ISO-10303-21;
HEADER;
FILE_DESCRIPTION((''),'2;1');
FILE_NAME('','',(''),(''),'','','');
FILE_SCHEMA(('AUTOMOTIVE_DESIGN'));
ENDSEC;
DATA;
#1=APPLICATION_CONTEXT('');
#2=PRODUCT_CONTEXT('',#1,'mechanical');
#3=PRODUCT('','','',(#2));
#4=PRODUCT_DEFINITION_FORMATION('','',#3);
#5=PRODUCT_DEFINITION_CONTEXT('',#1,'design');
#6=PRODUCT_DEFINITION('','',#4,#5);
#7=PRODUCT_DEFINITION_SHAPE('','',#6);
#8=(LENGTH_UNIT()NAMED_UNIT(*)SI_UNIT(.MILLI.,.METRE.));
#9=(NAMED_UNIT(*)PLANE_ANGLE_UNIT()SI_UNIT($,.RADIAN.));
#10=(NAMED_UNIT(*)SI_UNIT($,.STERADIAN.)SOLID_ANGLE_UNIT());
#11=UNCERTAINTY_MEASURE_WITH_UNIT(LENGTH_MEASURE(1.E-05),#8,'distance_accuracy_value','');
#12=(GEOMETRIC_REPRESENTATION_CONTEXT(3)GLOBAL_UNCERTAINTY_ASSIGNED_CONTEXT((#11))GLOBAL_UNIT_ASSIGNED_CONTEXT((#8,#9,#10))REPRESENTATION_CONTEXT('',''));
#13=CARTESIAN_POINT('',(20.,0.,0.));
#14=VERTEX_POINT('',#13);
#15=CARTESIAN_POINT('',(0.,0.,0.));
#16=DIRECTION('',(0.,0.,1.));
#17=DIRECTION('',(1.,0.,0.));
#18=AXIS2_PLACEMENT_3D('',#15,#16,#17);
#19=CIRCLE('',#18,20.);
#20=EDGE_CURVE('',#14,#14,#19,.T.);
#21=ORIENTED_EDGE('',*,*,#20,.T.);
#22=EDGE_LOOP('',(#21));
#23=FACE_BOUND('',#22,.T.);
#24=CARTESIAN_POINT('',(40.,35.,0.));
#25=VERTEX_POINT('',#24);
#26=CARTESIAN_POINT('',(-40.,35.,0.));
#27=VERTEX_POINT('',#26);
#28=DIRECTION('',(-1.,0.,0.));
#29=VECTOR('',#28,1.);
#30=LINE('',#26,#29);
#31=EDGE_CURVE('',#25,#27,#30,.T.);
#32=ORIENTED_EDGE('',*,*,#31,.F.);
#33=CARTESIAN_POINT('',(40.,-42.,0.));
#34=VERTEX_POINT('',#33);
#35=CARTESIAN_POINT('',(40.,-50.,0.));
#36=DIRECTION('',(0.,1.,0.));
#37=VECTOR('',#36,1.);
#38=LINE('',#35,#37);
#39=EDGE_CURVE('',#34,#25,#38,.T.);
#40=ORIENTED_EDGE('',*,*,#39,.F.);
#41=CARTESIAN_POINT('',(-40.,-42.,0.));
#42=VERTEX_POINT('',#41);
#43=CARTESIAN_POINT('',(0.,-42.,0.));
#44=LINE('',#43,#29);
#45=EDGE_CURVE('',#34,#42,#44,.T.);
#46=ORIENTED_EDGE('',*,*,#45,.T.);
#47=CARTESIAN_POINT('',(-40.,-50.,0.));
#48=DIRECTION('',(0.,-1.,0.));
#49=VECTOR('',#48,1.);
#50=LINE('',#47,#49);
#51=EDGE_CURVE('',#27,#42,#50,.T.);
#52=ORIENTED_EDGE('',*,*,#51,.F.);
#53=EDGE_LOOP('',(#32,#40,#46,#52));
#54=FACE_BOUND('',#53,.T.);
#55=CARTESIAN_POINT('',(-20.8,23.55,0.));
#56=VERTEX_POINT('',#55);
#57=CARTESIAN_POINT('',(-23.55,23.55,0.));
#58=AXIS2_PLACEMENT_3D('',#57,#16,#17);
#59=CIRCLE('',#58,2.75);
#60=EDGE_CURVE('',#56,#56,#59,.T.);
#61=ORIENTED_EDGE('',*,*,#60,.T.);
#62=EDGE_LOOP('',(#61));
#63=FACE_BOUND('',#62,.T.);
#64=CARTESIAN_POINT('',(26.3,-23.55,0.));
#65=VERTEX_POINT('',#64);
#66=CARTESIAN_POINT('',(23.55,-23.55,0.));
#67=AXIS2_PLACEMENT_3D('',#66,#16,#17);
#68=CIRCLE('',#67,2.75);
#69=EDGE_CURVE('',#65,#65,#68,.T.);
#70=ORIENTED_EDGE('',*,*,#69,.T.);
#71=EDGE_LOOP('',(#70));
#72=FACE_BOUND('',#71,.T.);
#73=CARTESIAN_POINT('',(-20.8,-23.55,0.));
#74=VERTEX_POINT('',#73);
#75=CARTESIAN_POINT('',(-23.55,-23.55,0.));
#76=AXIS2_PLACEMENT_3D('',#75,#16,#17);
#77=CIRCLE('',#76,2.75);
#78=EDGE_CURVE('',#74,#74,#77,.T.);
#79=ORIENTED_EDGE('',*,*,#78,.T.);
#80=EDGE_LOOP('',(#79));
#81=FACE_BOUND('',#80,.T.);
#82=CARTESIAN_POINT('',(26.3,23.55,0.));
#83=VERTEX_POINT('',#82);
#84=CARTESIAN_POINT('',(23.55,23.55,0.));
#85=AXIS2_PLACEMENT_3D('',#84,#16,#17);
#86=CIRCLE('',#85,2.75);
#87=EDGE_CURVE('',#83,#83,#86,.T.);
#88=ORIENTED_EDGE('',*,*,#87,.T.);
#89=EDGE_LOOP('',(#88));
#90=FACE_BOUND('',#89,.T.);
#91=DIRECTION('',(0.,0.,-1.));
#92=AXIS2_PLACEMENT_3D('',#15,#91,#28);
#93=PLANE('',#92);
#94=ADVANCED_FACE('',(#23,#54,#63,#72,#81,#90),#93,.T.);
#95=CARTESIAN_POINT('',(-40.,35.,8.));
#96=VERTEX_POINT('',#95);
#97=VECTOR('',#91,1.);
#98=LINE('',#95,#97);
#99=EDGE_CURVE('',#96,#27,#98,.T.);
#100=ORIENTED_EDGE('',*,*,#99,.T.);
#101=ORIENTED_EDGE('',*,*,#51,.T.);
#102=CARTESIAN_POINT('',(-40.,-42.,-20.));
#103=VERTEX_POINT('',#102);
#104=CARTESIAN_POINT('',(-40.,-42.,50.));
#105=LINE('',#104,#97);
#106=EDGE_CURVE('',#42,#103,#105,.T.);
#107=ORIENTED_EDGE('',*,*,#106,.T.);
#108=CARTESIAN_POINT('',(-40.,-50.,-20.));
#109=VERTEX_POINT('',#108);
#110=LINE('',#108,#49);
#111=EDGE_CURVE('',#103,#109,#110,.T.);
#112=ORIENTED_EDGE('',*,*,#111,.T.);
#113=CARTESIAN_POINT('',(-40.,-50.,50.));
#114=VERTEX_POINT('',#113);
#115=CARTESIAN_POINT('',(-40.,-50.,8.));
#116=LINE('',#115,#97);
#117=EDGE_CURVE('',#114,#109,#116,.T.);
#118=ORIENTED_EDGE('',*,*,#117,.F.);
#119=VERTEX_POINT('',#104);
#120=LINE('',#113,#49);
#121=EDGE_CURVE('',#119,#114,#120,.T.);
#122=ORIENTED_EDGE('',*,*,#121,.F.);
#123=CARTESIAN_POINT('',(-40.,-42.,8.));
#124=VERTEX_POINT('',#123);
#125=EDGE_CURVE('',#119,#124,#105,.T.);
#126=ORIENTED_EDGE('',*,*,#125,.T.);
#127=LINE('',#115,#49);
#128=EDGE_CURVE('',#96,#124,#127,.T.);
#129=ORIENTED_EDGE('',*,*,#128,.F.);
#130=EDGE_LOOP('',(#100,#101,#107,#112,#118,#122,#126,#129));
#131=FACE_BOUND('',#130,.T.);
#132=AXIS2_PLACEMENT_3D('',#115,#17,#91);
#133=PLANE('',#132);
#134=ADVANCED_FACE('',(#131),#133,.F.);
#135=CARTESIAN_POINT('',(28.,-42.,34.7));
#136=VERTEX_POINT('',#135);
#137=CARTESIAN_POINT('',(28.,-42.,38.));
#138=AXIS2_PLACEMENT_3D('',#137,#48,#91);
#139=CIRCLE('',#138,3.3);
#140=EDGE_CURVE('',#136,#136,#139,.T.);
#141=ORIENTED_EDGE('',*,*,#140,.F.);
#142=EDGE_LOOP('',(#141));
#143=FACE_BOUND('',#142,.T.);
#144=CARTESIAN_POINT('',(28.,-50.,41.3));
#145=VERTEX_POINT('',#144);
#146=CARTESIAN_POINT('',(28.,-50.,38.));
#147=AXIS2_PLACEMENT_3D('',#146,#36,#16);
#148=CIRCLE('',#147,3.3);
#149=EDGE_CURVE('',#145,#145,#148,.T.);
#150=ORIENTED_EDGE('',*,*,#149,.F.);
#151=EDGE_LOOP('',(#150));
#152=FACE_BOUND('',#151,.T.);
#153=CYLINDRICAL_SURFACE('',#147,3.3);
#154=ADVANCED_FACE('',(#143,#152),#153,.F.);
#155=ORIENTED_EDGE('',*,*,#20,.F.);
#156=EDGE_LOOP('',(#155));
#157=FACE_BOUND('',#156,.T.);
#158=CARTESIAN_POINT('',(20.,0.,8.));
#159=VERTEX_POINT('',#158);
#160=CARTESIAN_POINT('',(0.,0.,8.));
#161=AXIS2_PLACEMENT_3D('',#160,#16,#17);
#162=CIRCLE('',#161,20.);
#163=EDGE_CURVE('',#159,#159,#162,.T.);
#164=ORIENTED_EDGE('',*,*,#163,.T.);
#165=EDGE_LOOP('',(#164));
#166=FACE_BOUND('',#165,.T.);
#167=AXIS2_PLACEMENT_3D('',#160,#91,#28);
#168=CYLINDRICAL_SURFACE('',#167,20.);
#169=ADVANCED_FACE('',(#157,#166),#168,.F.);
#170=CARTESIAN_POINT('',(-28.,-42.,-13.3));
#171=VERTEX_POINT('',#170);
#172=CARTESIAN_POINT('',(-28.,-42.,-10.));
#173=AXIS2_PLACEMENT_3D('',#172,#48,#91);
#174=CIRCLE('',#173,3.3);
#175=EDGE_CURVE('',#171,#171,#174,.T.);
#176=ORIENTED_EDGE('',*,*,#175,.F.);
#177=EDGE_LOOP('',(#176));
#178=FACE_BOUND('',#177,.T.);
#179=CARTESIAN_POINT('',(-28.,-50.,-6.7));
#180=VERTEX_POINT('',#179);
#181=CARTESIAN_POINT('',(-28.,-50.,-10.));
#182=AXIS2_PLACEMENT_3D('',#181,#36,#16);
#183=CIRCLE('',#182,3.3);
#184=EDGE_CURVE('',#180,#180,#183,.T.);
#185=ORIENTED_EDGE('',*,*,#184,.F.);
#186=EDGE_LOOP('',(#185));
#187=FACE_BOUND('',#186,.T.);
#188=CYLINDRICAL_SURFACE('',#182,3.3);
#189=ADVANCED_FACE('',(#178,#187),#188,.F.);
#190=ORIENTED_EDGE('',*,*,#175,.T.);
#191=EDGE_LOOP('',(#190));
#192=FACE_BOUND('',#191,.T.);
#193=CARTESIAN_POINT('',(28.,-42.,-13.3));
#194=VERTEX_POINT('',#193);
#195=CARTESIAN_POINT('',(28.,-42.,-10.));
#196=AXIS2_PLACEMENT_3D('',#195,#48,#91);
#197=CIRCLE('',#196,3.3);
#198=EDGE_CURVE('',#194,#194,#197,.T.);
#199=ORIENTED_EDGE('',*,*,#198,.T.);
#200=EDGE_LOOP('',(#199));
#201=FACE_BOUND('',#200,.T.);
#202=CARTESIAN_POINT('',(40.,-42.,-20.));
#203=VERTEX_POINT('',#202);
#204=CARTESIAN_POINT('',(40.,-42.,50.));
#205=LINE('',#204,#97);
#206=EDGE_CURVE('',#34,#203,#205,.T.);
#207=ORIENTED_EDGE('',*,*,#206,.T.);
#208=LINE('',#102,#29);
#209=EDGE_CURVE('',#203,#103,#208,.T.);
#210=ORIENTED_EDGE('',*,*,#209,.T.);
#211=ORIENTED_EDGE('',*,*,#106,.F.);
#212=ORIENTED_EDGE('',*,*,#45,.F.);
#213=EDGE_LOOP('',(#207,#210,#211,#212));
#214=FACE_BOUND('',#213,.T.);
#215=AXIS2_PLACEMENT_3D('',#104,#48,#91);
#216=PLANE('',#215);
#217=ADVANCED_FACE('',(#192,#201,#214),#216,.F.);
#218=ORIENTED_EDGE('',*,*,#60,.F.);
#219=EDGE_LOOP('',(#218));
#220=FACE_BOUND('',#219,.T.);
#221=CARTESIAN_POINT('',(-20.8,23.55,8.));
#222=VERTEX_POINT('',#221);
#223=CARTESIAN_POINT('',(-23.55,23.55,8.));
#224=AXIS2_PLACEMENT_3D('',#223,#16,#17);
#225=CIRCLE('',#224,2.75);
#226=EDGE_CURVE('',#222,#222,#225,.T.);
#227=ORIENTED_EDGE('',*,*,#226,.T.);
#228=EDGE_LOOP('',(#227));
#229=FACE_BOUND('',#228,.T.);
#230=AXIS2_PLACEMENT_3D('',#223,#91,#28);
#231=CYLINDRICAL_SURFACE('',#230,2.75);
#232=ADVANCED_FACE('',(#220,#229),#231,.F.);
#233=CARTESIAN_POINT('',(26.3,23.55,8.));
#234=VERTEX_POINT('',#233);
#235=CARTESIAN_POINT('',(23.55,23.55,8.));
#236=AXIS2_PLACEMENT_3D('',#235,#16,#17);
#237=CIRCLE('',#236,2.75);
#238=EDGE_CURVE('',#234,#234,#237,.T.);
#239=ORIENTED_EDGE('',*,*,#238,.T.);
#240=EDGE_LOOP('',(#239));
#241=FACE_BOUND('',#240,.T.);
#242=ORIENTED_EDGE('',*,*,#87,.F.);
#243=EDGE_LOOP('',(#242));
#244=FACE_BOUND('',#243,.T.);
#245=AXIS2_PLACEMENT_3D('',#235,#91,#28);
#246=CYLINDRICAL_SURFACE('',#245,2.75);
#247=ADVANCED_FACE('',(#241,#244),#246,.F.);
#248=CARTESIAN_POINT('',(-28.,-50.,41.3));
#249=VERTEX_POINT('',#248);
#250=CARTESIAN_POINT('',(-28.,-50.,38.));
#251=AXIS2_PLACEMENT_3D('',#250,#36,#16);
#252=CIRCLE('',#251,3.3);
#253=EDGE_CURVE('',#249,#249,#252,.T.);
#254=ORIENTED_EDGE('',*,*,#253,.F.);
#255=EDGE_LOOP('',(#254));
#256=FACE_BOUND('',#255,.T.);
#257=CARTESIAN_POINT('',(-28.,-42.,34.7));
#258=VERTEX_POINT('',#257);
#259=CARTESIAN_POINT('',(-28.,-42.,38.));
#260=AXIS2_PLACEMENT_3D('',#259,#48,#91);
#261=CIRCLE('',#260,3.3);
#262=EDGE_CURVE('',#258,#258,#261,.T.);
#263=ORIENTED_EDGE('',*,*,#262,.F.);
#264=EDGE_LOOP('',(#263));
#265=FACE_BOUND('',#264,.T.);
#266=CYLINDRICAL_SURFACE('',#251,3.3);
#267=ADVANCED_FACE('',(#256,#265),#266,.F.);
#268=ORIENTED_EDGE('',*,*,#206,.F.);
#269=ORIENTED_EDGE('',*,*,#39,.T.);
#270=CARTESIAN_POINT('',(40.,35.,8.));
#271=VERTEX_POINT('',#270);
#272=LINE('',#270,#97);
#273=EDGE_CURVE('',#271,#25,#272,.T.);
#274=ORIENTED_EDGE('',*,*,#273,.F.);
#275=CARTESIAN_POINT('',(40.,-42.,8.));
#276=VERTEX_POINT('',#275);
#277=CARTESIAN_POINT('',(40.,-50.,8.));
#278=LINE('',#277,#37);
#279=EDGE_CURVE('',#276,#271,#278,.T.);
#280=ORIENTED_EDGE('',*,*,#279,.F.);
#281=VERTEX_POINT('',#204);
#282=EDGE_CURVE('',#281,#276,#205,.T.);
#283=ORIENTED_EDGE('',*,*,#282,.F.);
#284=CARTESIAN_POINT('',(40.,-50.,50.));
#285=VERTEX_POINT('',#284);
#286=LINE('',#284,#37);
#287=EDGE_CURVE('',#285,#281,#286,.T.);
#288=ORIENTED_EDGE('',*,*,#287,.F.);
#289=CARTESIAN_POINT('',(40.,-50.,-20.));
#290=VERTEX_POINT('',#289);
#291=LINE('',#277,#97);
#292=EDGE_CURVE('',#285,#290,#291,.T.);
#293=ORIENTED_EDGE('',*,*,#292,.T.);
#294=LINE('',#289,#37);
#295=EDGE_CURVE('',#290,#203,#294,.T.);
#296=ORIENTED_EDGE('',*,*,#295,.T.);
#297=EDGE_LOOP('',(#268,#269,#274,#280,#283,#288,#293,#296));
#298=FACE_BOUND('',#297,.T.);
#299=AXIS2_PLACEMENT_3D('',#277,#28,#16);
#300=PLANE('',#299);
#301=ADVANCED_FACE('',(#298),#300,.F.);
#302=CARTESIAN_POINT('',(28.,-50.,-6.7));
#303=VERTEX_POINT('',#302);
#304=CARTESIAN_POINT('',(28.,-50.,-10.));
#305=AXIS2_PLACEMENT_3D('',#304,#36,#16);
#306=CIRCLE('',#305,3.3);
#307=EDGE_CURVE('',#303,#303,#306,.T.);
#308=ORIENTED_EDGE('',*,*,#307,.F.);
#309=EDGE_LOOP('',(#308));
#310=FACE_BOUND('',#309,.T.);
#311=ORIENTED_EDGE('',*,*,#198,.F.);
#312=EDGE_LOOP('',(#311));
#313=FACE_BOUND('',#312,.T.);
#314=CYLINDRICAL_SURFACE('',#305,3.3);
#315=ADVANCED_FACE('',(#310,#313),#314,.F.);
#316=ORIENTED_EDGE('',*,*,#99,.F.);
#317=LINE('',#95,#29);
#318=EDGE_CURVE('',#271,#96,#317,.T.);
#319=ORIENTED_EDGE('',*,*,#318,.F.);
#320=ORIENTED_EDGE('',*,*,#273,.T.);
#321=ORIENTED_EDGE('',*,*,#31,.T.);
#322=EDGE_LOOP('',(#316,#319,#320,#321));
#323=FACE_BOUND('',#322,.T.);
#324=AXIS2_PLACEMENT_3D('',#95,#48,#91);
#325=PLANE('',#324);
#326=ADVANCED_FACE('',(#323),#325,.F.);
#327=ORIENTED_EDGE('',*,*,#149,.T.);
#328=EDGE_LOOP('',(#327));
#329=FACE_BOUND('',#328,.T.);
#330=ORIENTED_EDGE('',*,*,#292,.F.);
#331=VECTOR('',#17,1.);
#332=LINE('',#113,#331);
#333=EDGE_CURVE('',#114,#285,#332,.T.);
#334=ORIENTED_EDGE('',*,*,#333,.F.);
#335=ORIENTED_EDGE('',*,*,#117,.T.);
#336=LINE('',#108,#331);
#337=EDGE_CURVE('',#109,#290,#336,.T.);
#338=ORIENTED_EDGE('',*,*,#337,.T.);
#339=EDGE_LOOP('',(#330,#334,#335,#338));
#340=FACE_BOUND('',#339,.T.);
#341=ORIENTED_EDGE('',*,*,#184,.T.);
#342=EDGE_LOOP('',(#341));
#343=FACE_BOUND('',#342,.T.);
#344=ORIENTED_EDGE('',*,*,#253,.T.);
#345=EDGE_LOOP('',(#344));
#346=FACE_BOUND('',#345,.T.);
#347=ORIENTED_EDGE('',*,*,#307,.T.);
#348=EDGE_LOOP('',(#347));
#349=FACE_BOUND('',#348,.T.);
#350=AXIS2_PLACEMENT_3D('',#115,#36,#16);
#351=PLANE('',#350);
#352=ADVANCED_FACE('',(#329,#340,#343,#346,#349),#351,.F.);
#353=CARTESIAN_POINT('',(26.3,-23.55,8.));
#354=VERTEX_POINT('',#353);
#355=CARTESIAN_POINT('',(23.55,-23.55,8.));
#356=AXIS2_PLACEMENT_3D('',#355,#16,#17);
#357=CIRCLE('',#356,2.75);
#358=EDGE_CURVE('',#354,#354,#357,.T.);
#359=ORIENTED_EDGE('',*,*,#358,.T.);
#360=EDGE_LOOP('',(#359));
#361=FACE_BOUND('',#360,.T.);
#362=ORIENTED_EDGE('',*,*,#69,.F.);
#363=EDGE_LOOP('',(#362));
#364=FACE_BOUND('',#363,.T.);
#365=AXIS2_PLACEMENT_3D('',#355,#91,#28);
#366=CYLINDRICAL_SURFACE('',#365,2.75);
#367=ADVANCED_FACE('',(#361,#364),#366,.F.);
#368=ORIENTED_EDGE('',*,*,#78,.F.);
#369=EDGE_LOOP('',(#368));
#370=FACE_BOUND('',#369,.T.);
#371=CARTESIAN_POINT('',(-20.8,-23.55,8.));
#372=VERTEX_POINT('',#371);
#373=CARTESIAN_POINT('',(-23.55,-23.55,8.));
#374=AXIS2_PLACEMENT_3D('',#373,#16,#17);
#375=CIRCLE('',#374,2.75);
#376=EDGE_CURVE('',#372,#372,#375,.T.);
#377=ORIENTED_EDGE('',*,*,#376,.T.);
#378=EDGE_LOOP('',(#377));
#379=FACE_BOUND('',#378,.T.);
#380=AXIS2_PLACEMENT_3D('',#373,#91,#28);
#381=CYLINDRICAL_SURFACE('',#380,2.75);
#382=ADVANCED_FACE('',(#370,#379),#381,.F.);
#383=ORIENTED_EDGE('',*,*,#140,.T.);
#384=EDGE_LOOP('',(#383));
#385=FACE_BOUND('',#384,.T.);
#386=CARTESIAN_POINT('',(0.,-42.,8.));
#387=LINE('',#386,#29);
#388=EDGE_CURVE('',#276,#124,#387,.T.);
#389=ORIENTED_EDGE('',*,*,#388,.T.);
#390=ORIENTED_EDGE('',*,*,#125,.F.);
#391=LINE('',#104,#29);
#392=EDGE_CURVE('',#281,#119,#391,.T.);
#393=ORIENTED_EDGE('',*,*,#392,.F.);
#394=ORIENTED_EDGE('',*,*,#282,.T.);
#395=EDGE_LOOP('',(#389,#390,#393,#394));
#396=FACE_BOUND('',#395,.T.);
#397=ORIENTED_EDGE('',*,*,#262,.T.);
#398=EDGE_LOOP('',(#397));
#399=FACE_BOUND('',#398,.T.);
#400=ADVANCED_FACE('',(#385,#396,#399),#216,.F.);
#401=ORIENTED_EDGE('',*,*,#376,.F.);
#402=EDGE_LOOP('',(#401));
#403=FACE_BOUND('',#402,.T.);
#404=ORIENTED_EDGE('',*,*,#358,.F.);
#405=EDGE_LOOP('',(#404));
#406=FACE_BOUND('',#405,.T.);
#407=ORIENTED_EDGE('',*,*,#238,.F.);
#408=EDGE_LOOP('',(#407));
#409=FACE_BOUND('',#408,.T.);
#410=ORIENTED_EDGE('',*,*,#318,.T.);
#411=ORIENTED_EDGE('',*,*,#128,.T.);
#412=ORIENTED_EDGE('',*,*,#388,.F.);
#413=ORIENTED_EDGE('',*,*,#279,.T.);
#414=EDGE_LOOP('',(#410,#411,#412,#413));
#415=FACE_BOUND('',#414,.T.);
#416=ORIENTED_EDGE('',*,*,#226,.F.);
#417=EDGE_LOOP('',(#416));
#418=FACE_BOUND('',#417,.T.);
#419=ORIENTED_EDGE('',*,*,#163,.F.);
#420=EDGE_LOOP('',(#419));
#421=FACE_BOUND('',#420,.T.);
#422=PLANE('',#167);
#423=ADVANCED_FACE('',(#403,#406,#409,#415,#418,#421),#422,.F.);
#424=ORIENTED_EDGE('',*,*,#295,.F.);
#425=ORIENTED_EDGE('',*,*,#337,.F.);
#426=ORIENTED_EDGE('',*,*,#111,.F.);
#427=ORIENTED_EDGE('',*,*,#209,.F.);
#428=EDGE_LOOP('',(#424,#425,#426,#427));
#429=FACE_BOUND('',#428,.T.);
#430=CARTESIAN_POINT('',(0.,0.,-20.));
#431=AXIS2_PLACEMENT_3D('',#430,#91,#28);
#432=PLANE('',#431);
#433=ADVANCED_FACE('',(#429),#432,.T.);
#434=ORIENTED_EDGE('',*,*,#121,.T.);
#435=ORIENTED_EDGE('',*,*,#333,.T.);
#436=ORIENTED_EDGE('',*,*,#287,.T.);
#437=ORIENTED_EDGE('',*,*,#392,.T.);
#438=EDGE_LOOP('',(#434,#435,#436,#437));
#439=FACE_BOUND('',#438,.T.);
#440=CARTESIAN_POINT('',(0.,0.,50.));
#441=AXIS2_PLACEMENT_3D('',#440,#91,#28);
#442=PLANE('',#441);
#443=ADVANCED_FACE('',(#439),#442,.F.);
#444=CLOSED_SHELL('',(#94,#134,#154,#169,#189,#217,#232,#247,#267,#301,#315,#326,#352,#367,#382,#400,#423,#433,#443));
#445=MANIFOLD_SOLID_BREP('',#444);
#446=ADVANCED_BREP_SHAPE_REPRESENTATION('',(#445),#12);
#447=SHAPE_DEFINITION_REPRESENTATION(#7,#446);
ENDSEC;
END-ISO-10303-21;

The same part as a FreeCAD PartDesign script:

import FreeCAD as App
import Part
import Sketcher

doc = App.newDocument("Part")
params = doc.addObject("Spreadsheet::Sheet", "Params")
for row, (alias, value) in enumerate([
    ("sketch1_diameter", "40 mm"),
    ("sketch1_diameter2", "5.5 mm"),
    ("sketch1_width", "80 mm"),
    ("sketch1_height", "85 mm"),
    ("pad1_length", "8 mm"),
    ("sketch2_width", "80 mm"),
    ("sketch2_height", "8 mm"),
    ("pad2_length", "70 mm"),
    ("sketch3_diameter", "6.6 mm"),
], start=1):
    params.set(f"A{row}", alias)
    params.set(f"B{row}", "=" + value)
    params.setAlias(f"B{row}", alias)

body = doc.addObject("PartDesign::Body", "Body")

sketch1 = body.newObject("Sketcher::SketchObject", "Sketch")
sketch1.AttachmentSupport = (doc.getObject("XY_Plane"), [""])
sketch1.MapMode = "FlatFace"
sketch1.addGeometry([
    Part.LineSegment(App.Vector(-40, 35, 0), App.Vector(-40, -50, 0)),
    Part.LineSegment(App.Vector(-40, -50, 0), App.Vector(40, -50, 0)),
    Part.LineSegment(App.Vector(40, -50, 0), App.Vector(40, 35, 0)),
    Part.LineSegment(App.Vector(40, 35, 0), App.Vector(-40, 35, 0)),
    Part.Circle(App.Vector(-23.6, -23.6, 0), App.Vector(0, 0, 1), 2.8),
    Part.Circle(App.Vector(23.6, -23.6, 0), App.Vector(0, 0, 1), 2.8),
    Part.Circle(App.Vector(-23.6, 23.6, 0), App.Vector(0, 0, 1), 2.8),
    Part.Circle(App.Vector(0, 0, 0), App.Vector(0, 0, 1), 20),
    Part.Circle(App.Vector(23.6, 23.6, 0), App.Vector(0, 0, 1), 2.8),
], False)
sketch1.addConstraint([
    Sketcher.Constraint("Coincident", 0, 2, 1, 1),
    Sketcher.Constraint("Coincident", 1, 2, 2, 1),
    Sketcher.Constraint("Coincident", 2, 2, 3, 1),
    Sketcher.Constraint("Coincident", 3, 2, 0, 1),
    Sketcher.Constraint("Vertical", 0),
    Sketcher.Constraint("Horizontal", 1),
    Sketcher.Constraint("Vertical", 2),
    Sketcher.Constraint("Horizontal", 3),
    Sketcher.Constraint("Coincident", 7, 3, -1, 1),
    Sketcher.Constraint("Equal", 4, 5),
    Sketcher.Constraint("Equal", 5, 6),
    Sketcher.Constraint("Equal", 6, 8),
    Sketcher.Constraint("Symmetric", 5, 3, 6, 3, -1, 1),
    Sketcher.Constraint("Symmetric", 4, 3, 8, 3, -1, 1),
    Sketcher.Constraint("Symmetric", 4, 3, 5, 3, -2),
    Sketcher.Constraint("Diameter", 7, 40.0),
    Sketcher.Constraint("Diameter", 4, 5.5),
    Sketcher.Constraint("DistanceX", 1, 1, 1, 2, 80.0),
    Sketcher.Constraint("DistanceY", 0, 2, 0, 1, 85.0),
    Sketcher.Constraint("DistanceX", 0, 2, -1, 1, 40.0),
    Sketcher.Constraint("DistanceY", 0, 2, -1, 1, 50.0),
    Sketcher.Constraint("DistanceX", 4, 3, 5, 3, 47.1),
    Sketcher.Constraint("DistanceY", 4, 3, 6, 3, 47.1),
])
sketch1.setExpression("Constraints[15]", "Params.sketch1_diameter")
sketch1.setExpression("Constraints[16]", "Params.sketch1_diameter2")
sketch1.setExpression("Constraints[17]", "Params.sketch1_width")
sketch1.setExpression("Constraints[18]", "Params.sketch1_height")
pad1 = body.newObject("PartDesign::Pad", "Pad")
pad1.Profile = sketch1
pad1.setExpression("Length", "Params.pad1_length")

sketch2 = body.newObject("Sketcher::SketchObject", "Sketch001")
sketch2.AttachmentSupport = (doc.getObject("XY_Plane"), [""])
sketch2.MapMode = "FlatFace"
sketch2.AttachmentOffset = App.Placement(App.Vector(0, 0, -20), App.Rotation())
sketch2.addGeometry([
    Part.LineSegment(App.Vector(-40, -42, 0), App.Vector(-40, -50, 0)),
    Part.LineSegment(App.Vector(-40, -50, 0), App.Vector(40, -50, 0)),
    Part.LineSegment(App.Vector(40, -50, 0), App.Vector(40, -42, 0)),
    Part.LineSegment(App.Vector(40, -42, 0), App.Vector(-40, -42, 0)),
], False)
sketch2.addConstraint([
    Sketcher.Constraint("Coincident", 0, 2, 1, 1),
    Sketcher.Constraint("Coincident", 1, 2, 2, 1),
    Sketcher.Constraint("Coincident", 2, 2, 3, 1),
    Sketcher.Constraint("Coincident", 3, 2, 0, 1),
    Sketcher.Constraint("Vertical", 0),
    Sketcher.Constraint("Horizontal", 1),
    Sketcher.Constraint("Vertical", 2),
    Sketcher.Constraint("Horizontal", 3),
    Sketcher.Constraint("DistanceX", 1, 1, 1, 2, 80.0),
    Sketcher.Constraint("DistanceY", 0, 2, 0, 1, 8.0),
    Sketcher.Constraint("DistanceX", 0, 2, -1, 1, 40.0),
    Sketcher.Constraint("DistanceY", 0, 2, -1, 1, 50.0),
])
sketch2.setExpression("Constraints[8]", "Params.sketch2_width")
sketch2.setExpression("Constraints[9]", "Params.sketch2_height")
pad2 = body.newObject("PartDesign::Pad", "Pad001")
pad2.Profile = sketch2
pad2.setExpression("Length", "Params.pad2_length")

sketch3 = body.newObject("Sketcher::SketchObject", "Sketch002")
sketch3.AttachmentSupport = (doc.getObject("XZ_Plane"), [""])
sketch3.MapMode = "FlatFace"
sketch3.addGeometry([
    Part.Circle(App.Vector(-28, -10, 0), App.Vector(0, 0, 1), 3.3),
    Part.Circle(App.Vector(-28, 38, 0), App.Vector(0, 0, 1), 3.3),
    Part.Circle(App.Vector(28, -10, 0), App.Vector(0, 0, 1), 3.3),
    Part.Circle(App.Vector(28, 38, 0), App.Vector(0, 0, 1), 3.3),
], False)
sketch3.addConstraint([
    Sketcher.Constraint("Equal", 0, 1),
    Sketcher.Constraint("Equal", 1, 2),
    Sketcher.Constraint("Equal", 2, 3),
    Sketcher.Constraint("Symmetric", 0, 3, 2, 3, -2),
    Sketcher.Constraint("Symmetric", 1, 3, 3, 3, -2),
    Sketcher.Constraint("Vertical", 0, 3, 1, 3),
    Sketcher.Constraint("Diameter", 0, 6.6),
    Sketcher.Constraint("DistanceX", 0, 3, -1, 1, 28.0),
    Sketcher.Constraint("DistanceY", 0, 3, -1, 1, 10.0),
    Sketcher.Constraint("DistanceY", -1, 1, 1, 3, 38.0),
])
sketch3.setExpression("Constraints[6]", "Params.sketch3_diameter")
pocket1 = body.newObject("PartDesign::Pocket", "Pocket")
pocket1.Profile = sketch3
pocket1.Type = "ThroughAll"
pocket1.Midplane = True

doc.recompute()
